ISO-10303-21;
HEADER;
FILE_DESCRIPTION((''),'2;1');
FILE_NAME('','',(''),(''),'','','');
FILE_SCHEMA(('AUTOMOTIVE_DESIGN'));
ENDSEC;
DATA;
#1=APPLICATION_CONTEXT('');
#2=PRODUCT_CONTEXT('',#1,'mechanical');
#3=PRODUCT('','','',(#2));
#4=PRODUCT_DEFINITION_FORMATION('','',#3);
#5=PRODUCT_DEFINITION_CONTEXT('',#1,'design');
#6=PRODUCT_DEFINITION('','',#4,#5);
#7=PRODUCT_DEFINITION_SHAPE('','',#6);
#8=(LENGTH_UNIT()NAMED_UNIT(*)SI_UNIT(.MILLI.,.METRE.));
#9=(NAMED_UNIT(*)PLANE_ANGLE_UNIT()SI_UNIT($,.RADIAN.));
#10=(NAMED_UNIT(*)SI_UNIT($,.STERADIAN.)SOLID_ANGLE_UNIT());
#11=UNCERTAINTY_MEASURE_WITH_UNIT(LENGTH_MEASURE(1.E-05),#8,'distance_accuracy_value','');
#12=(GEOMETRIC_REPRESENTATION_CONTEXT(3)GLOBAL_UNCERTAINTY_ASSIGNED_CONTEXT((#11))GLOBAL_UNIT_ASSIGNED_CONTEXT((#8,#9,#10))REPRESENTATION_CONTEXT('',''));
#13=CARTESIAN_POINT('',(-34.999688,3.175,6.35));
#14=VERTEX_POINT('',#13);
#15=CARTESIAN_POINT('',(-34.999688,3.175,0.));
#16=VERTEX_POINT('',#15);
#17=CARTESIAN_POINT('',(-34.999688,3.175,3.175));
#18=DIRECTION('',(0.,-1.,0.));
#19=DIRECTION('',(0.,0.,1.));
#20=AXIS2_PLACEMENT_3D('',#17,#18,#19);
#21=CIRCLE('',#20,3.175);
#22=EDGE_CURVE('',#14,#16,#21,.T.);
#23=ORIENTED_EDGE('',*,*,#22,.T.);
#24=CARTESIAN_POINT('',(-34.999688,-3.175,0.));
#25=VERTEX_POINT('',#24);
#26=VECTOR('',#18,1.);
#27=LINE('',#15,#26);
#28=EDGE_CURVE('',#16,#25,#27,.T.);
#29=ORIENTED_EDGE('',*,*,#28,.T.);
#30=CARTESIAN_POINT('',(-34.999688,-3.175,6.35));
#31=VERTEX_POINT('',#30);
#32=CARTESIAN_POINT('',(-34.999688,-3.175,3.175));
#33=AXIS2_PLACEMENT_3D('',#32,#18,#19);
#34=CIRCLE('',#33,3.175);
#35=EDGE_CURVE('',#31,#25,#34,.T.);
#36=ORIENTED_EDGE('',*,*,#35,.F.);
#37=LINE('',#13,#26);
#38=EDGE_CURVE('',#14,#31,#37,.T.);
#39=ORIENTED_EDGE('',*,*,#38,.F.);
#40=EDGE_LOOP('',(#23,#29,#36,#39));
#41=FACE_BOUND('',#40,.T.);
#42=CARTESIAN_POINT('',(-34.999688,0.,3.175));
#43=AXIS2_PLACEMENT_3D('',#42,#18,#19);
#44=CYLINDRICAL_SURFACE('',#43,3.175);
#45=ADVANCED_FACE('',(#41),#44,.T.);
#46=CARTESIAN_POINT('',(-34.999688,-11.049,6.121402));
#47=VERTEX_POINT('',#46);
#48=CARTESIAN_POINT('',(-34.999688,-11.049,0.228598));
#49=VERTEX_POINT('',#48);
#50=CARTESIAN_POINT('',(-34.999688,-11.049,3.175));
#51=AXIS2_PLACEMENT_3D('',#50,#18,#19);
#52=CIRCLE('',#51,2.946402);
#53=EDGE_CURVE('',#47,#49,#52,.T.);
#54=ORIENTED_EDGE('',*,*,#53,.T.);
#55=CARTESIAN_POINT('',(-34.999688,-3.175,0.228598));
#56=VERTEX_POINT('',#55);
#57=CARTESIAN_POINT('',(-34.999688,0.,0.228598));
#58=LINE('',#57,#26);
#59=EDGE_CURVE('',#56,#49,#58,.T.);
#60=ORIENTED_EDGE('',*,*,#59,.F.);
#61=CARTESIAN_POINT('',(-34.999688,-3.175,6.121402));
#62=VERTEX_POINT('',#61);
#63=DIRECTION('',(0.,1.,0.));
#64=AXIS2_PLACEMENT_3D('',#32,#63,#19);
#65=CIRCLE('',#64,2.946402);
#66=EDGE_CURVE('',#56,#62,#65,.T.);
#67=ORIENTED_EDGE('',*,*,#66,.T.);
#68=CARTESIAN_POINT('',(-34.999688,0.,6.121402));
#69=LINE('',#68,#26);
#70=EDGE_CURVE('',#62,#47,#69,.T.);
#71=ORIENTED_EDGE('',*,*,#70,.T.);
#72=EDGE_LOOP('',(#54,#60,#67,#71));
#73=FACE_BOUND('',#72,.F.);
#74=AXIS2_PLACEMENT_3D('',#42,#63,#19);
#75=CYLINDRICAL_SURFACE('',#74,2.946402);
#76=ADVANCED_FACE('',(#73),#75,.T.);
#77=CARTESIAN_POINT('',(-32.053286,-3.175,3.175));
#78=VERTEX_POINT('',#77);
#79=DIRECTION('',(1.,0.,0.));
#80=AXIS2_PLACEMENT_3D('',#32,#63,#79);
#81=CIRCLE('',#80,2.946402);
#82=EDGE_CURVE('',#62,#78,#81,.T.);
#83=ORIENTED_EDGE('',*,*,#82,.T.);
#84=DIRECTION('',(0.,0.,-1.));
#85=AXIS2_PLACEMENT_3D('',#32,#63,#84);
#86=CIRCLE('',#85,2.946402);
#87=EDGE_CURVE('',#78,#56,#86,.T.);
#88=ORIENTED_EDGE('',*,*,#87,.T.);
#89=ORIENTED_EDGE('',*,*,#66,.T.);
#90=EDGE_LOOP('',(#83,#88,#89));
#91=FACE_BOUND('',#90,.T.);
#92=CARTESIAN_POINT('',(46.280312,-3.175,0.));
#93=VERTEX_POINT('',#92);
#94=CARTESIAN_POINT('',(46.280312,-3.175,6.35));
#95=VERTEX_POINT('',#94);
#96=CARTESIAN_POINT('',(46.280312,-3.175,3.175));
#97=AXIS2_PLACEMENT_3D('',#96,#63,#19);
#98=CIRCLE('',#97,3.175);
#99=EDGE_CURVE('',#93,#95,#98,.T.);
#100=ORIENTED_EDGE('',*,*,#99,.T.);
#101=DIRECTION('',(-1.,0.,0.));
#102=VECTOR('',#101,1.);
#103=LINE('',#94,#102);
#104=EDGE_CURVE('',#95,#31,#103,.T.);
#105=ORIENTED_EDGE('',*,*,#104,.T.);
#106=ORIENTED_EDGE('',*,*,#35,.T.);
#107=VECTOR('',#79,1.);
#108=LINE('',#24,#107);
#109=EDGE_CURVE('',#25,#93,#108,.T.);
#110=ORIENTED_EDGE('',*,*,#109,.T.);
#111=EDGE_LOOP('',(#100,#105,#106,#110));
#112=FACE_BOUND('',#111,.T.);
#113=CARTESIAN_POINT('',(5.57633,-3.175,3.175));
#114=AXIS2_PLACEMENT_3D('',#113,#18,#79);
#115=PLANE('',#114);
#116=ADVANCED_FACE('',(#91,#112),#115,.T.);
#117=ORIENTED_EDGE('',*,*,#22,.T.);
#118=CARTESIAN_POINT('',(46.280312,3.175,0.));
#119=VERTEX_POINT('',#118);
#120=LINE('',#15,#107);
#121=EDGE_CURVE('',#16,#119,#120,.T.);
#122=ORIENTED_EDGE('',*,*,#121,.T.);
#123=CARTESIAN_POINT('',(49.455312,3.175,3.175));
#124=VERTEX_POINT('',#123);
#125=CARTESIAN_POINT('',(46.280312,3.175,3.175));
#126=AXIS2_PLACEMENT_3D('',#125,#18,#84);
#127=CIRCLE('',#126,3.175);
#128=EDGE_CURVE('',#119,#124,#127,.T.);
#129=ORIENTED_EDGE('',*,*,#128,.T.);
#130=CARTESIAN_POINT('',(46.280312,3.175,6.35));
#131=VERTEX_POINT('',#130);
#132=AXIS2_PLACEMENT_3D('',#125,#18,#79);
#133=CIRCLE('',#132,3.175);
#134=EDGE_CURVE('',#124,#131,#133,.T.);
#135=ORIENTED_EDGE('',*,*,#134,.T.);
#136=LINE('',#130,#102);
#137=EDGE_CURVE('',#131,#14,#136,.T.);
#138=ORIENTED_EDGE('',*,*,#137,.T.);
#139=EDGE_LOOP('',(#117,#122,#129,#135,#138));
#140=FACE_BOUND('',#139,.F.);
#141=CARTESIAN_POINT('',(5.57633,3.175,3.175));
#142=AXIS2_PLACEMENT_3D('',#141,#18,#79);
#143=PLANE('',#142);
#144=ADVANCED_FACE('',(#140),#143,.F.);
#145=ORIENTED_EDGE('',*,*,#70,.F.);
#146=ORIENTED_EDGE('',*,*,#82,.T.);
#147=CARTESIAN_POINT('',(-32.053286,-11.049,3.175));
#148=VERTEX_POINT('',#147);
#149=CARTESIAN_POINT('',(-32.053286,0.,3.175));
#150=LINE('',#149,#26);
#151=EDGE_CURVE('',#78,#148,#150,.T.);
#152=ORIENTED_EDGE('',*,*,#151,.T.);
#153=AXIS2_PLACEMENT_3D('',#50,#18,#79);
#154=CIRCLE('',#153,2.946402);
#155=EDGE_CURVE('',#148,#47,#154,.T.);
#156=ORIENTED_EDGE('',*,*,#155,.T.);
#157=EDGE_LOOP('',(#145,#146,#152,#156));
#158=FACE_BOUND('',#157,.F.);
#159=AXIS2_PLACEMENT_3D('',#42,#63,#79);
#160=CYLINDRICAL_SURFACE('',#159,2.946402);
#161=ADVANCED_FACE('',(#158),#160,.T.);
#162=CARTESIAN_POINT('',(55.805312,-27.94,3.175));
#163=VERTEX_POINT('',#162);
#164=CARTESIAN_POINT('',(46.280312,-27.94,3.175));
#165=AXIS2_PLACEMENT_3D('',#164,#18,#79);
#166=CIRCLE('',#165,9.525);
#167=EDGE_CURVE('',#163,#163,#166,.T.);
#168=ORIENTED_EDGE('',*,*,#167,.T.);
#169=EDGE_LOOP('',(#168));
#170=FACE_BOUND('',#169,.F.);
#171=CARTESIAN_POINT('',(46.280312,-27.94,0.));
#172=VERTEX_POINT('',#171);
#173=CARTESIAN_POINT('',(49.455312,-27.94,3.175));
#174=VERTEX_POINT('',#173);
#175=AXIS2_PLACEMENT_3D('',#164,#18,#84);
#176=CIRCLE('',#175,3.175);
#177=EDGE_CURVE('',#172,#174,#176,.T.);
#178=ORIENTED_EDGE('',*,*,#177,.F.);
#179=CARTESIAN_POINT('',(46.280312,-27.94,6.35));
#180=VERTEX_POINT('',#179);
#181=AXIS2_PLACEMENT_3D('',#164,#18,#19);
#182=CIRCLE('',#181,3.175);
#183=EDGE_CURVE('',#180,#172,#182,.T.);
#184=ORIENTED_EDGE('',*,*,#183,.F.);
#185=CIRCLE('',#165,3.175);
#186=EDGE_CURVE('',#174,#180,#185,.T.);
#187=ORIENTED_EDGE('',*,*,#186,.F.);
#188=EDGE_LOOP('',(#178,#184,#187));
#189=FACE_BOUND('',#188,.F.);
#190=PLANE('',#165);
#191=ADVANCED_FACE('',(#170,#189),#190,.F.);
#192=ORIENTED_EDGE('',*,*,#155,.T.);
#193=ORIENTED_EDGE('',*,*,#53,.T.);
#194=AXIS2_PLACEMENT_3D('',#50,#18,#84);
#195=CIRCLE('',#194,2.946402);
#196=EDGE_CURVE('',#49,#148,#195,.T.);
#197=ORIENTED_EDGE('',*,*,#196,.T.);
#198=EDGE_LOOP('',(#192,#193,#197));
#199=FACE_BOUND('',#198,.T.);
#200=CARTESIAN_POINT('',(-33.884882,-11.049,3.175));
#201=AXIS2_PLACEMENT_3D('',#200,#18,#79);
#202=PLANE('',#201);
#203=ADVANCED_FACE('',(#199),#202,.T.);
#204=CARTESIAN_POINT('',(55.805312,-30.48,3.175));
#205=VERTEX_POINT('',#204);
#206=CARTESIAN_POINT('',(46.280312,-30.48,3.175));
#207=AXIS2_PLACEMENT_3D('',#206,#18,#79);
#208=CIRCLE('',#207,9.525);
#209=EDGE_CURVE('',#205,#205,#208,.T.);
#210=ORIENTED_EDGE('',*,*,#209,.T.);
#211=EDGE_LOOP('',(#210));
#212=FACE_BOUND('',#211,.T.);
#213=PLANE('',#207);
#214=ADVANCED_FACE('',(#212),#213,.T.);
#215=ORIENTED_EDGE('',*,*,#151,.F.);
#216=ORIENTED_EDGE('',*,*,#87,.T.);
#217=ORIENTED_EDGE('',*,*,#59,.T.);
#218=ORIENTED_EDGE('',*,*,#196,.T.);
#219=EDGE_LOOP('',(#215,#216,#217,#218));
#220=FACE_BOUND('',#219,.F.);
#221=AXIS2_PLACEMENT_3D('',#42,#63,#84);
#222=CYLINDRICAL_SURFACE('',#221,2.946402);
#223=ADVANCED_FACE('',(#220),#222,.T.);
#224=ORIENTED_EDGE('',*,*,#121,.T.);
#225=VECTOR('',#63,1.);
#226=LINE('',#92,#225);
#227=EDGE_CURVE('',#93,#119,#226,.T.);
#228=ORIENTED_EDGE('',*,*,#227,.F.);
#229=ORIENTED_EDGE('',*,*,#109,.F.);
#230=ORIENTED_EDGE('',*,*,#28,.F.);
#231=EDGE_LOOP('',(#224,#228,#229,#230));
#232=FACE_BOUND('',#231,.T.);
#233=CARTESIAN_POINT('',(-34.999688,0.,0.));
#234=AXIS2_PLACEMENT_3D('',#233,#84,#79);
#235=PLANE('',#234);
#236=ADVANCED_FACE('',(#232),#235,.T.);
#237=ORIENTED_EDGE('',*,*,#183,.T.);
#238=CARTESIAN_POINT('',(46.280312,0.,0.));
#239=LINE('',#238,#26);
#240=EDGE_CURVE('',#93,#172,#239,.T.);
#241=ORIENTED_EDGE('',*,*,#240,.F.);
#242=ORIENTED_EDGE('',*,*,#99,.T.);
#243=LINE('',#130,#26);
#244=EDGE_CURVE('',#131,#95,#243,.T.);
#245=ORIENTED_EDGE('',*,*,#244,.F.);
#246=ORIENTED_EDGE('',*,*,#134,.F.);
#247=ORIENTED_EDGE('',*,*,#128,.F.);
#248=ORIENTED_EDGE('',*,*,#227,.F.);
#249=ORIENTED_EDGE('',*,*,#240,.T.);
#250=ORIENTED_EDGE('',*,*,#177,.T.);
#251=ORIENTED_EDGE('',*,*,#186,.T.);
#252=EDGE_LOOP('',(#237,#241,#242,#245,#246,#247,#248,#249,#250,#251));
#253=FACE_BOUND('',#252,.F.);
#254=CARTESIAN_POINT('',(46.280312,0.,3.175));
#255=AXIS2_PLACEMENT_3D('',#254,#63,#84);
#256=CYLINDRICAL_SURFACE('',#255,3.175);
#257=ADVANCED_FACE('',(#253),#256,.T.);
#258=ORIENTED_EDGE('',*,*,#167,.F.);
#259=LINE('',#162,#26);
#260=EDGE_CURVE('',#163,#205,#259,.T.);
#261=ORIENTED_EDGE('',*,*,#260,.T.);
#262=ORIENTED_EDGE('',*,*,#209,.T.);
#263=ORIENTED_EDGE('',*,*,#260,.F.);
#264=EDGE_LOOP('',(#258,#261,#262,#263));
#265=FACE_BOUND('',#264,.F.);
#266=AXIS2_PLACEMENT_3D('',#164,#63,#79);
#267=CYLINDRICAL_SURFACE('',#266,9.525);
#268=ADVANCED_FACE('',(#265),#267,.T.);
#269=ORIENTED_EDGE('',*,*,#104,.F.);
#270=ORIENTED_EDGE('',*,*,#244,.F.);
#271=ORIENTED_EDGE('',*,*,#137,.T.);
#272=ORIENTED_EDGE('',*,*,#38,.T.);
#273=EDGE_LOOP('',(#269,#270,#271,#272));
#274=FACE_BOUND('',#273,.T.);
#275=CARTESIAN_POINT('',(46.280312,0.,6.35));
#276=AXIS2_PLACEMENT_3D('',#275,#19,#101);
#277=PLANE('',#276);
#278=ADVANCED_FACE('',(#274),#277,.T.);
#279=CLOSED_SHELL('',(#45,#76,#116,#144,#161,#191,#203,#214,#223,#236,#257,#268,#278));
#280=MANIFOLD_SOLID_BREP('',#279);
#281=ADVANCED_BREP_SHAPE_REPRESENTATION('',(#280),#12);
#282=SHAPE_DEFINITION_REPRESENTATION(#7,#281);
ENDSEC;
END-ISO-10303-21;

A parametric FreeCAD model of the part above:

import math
import FreeCAD as App
import Part
import Sketcher
from FreeCAD import Vector
Q = App.Units.Quantity

doc = App.newDocument("Part")
body = doc.addObject("PartDesign::Body", "Body")

# Sketch on XZ plane
sketch1 = body.newObject("Sketcher::SketchObject", "Sketch")
sketch1.AttachmentSupport = (doc.getObject("XZ_Plane"), [""])
sketch1.MapMode = "FlatFace"
sketch1.addGeometry(Part.ArcOfCircle(Part.Circle(Vector(-35, 3.2, 0), Vector(0, 0, 1), 2.9), math.radians(0), math.radians(90)), False)
sketch1.addGeometry(Part.ArcOfCircle(Part.Circle(Vector(-35, 3.2, 0), Vector(0, 0, 1), 2.9), math.radians(90), math.radians(270)), False)
sketch1.addGeometry(Part.ArcOfCircle(Part.Circle(Vector(-35, 3.2, 0), Vector(0, 0, 1), 2.9), math.radians(-90), math.radians(0)), False)
sketch1.addConstraint(Sketcher.Constraint("Tangent", 0, 2, 1, 1))
sketch1.addConstraint(Sketcher.Constraint("Tangent", 1, 2, 2, 1))
sketch1.addConstraint(Sketcher.Constraint("Tangent", 2, 2, 0, 1))
sketch1.addConstraint(Sketcher.Constraint("Horizontal", 1, 3, 2, 2))
sketch1.addConstraint(Sketcher.Constraint("Vertical", 2, 3, 0, 2))
sketch1.addConstraint(Sketcher.Constraint("Vertical", 0, 2, 1, 2))
sketch1.addConstraint(Sketcher.Constraint("Radius", 0, Q("0.1160001 in")))
sketch1.addConstraint(Sketcher.Constraint("DistanceY", -1, 1, 0, 3, Q("0.125 in")))
sketch1.addConstraint(Sketcher.Constraint("DistanceX", 0, 3, -1, 1, Q("34.999688 mm")))
pad1 = body.newObject("PartDesign::Pad", "Pad")
pad1.Profile = sketch1
pad1.Length = Q("0.435 in")
body2 = doc.addObject("PartDesign::Body", "Body001")

# Sketch on XZ plane
sketch2 = body2.newObject("Sketcher::SketchObject", "Sketch001")
sketch2.AttachmentSupport = (doc.getObject("XZ_Plane001"), [""])
sketch2.MapMode = "FlatFace"
sketch2.addGeometry(Part.ArcOfCircle(Part.Circle(Vector(46.3, 3.2, 0), Vector(0, 0, 1), 3.2), math.radians(90), math.radians(270)), False)
sketch2.addGeometry(Part.ArcOfCircle(Part.Circle(Vector(46.3, 3.2, 0), Vector(0, 0, 1), 3.2), math.radians(-90), math.radians(0)), False)
sketch2.addGeometry(Part.ArcOfCircle(Part.Circle(Vector(46.3, 3.2, 0), Vector(0, 0, 1), 3.2), math.radians(0), math.radians(90)), False)
sketch2.addConstraint(Sketcher.Constraint("Tangent", 0, 2, 1, 1))
sketch2.addConstraint(Sketcher.Constraint("Tangent", 1, 2, 2, 1))
sketch2.addConstraint(Sketcher.Constraint("Tangent", 2, 2, 0, 1))
sketch2.addConstraint(Sketcher.Constraint("PointOnObject", 0, 2, -1))
sketch2.addConstraint(Sketcher.Constraint("Horizontal", 2, 3, 1, 2))
sketch2.addConstraint(Sketcher.Constraint("Vertical", 2, 3, 0, 2))
sketch2.addConstraint(Sketcher.Constraint("Vertical", 0, 2, 2, 2))
sketch2.addConstraint(Sketcher.Constraint("Radius", 0, Q("0.125 in")))
sketch2.addConstraint(Sketcher.Constraint("DistanceX", -1, 1, 0, 3, Q("46.280312 mm")))
pad2 = body2.newObject("PartDesign::Pad", "Pad001")
pad2.Profile = sketch2
pad2.Length = Q("1.1 in")
body.AllowCompound = True
doc.recompute()

boolean = body.newObject("PartDesign::Boolean", "Boolean")
boolean.Type = "Fuse"
boolean.addObjects([body2])

# Sketch on XZ plane
sketch3 = body.newObject("Sketcher::SketchObject", "Sketch002")
sketch3.AttachmentSupport = (doc.getObject("XZ_Plane"), [""])
sketch3.MapMode = "FlatFace"
sketch3.addGeometry(Part.LineSegment(Vector(46.3, 6.3, 0), Vector(-35, 6.3, 0)), False)
sketch3.addGeometry(Part.ArcOfCircle(Part.Circle(Vector(-35, 3.2, 0), Vector(0, 0, 1), 3.2), math.radians(90), math.radians(270)), False)
sketch3.addGeometry(Part.LineSegment(Vector(-35, 0, 0), Vector(46.3, 0, 0)), False)
sketch3.addGeometry(Part.ArcOfCircle(Part.Circle(Vector(46.3, 3.2, 0), Vector(0, 0, 1), 3.2), math.radians(-90), math.radians(0)), False)
sketch3.addGeometry(Part.ArcOfCircle(Part.Circle(Vector(46.3, 3.2, 0), Vector(0, 0, 1), 3.2), math.radians(0), math.radians(90)), False)
sketch3.addConstraint(Sketcher.Constraint("Tangent", 0, 2, 1, 1))
sketch3.addConstraint(Sketcher.Constraint("Tangent", 1, 2, 2, 1))
sketch3.addConstraint(Sketcher.Constraint("Tangent", 2, 2, 3, 1))
sketch3.addConstraint(Sketcher.Constraint("Tangent", 3, 2, 4, 1))
sketch3.addConstraint(Sketcher.Constraint("Tangent", 4, 2, 0, 1))
sketch3.addConstraint(Sketcher.Constraint("Horizontal", 0))
sketch3.addConstraint(Sketcher.Constraint("Horizontal", 2))
sketch3.addConstraint(Sketcher.Constraint("Equal", 1, 3))
sketch3.addConstraint(Sketcher.Constraint("PointOnObject", 1, 2, -1))
sketch3.addConstraint(Sketcher.Constraint("Horizontal", 4, 3, 3, 2))
sketch3.addConstraint(Sketcher.Constraint("DistanceX", 0, 2, 0, 1, Q("3.2 in")))
sketch3.addConstraint(Sketcher.Constraint("Radius", 1, Q("0.125 in")))
sketch3.addConstraint(Sketcher.Constraint("DistanceX", 1, 3, -1, 1, Q("34.999688 mm")))
pad3 = body.newObject("PartDesign::Pad", "Pad002")
pad3.Profile = sketch3
pad3.Length = Q("0.25 in")
pad3.Midplane = True

# Sketch on XZ plane
sketch4 = body.newObject("Sketcher::SketchObject", "Sketch003")
sketch4.AttachmentSupport = (doc.getObject("XZ_Plane"), [""])
sketch4.MapMode = "FlatFace"
sketch4.AttachmentOffset = App.Placement(Vector(0, 0, 1.1 * 25.4), App.Rotation())
sketch4.addGeometry(Part.Circle(Vector(46, 3, 0), Vector(0, 0, 1), 10), False)
sketch4.addConstraint(Sketcher.Constraint("Diameter", 0, Q("0.75 in")))
sketch4.addConstraint(Sketcher.Constraint("DistanceY", -1, 1, 0, 3, Q("0.125 in")))
sketch4.addConstraint(Sketcher.Constraint("DistanceX", -1, 1, 0, 3, Q("46.280312 mm")))
pad4 = body.newObject("PartDesign::Pad", "Pad003")
pad4.Profile = sketch4
pad4.Length = Q("0.1 in")

doc.recompute()
